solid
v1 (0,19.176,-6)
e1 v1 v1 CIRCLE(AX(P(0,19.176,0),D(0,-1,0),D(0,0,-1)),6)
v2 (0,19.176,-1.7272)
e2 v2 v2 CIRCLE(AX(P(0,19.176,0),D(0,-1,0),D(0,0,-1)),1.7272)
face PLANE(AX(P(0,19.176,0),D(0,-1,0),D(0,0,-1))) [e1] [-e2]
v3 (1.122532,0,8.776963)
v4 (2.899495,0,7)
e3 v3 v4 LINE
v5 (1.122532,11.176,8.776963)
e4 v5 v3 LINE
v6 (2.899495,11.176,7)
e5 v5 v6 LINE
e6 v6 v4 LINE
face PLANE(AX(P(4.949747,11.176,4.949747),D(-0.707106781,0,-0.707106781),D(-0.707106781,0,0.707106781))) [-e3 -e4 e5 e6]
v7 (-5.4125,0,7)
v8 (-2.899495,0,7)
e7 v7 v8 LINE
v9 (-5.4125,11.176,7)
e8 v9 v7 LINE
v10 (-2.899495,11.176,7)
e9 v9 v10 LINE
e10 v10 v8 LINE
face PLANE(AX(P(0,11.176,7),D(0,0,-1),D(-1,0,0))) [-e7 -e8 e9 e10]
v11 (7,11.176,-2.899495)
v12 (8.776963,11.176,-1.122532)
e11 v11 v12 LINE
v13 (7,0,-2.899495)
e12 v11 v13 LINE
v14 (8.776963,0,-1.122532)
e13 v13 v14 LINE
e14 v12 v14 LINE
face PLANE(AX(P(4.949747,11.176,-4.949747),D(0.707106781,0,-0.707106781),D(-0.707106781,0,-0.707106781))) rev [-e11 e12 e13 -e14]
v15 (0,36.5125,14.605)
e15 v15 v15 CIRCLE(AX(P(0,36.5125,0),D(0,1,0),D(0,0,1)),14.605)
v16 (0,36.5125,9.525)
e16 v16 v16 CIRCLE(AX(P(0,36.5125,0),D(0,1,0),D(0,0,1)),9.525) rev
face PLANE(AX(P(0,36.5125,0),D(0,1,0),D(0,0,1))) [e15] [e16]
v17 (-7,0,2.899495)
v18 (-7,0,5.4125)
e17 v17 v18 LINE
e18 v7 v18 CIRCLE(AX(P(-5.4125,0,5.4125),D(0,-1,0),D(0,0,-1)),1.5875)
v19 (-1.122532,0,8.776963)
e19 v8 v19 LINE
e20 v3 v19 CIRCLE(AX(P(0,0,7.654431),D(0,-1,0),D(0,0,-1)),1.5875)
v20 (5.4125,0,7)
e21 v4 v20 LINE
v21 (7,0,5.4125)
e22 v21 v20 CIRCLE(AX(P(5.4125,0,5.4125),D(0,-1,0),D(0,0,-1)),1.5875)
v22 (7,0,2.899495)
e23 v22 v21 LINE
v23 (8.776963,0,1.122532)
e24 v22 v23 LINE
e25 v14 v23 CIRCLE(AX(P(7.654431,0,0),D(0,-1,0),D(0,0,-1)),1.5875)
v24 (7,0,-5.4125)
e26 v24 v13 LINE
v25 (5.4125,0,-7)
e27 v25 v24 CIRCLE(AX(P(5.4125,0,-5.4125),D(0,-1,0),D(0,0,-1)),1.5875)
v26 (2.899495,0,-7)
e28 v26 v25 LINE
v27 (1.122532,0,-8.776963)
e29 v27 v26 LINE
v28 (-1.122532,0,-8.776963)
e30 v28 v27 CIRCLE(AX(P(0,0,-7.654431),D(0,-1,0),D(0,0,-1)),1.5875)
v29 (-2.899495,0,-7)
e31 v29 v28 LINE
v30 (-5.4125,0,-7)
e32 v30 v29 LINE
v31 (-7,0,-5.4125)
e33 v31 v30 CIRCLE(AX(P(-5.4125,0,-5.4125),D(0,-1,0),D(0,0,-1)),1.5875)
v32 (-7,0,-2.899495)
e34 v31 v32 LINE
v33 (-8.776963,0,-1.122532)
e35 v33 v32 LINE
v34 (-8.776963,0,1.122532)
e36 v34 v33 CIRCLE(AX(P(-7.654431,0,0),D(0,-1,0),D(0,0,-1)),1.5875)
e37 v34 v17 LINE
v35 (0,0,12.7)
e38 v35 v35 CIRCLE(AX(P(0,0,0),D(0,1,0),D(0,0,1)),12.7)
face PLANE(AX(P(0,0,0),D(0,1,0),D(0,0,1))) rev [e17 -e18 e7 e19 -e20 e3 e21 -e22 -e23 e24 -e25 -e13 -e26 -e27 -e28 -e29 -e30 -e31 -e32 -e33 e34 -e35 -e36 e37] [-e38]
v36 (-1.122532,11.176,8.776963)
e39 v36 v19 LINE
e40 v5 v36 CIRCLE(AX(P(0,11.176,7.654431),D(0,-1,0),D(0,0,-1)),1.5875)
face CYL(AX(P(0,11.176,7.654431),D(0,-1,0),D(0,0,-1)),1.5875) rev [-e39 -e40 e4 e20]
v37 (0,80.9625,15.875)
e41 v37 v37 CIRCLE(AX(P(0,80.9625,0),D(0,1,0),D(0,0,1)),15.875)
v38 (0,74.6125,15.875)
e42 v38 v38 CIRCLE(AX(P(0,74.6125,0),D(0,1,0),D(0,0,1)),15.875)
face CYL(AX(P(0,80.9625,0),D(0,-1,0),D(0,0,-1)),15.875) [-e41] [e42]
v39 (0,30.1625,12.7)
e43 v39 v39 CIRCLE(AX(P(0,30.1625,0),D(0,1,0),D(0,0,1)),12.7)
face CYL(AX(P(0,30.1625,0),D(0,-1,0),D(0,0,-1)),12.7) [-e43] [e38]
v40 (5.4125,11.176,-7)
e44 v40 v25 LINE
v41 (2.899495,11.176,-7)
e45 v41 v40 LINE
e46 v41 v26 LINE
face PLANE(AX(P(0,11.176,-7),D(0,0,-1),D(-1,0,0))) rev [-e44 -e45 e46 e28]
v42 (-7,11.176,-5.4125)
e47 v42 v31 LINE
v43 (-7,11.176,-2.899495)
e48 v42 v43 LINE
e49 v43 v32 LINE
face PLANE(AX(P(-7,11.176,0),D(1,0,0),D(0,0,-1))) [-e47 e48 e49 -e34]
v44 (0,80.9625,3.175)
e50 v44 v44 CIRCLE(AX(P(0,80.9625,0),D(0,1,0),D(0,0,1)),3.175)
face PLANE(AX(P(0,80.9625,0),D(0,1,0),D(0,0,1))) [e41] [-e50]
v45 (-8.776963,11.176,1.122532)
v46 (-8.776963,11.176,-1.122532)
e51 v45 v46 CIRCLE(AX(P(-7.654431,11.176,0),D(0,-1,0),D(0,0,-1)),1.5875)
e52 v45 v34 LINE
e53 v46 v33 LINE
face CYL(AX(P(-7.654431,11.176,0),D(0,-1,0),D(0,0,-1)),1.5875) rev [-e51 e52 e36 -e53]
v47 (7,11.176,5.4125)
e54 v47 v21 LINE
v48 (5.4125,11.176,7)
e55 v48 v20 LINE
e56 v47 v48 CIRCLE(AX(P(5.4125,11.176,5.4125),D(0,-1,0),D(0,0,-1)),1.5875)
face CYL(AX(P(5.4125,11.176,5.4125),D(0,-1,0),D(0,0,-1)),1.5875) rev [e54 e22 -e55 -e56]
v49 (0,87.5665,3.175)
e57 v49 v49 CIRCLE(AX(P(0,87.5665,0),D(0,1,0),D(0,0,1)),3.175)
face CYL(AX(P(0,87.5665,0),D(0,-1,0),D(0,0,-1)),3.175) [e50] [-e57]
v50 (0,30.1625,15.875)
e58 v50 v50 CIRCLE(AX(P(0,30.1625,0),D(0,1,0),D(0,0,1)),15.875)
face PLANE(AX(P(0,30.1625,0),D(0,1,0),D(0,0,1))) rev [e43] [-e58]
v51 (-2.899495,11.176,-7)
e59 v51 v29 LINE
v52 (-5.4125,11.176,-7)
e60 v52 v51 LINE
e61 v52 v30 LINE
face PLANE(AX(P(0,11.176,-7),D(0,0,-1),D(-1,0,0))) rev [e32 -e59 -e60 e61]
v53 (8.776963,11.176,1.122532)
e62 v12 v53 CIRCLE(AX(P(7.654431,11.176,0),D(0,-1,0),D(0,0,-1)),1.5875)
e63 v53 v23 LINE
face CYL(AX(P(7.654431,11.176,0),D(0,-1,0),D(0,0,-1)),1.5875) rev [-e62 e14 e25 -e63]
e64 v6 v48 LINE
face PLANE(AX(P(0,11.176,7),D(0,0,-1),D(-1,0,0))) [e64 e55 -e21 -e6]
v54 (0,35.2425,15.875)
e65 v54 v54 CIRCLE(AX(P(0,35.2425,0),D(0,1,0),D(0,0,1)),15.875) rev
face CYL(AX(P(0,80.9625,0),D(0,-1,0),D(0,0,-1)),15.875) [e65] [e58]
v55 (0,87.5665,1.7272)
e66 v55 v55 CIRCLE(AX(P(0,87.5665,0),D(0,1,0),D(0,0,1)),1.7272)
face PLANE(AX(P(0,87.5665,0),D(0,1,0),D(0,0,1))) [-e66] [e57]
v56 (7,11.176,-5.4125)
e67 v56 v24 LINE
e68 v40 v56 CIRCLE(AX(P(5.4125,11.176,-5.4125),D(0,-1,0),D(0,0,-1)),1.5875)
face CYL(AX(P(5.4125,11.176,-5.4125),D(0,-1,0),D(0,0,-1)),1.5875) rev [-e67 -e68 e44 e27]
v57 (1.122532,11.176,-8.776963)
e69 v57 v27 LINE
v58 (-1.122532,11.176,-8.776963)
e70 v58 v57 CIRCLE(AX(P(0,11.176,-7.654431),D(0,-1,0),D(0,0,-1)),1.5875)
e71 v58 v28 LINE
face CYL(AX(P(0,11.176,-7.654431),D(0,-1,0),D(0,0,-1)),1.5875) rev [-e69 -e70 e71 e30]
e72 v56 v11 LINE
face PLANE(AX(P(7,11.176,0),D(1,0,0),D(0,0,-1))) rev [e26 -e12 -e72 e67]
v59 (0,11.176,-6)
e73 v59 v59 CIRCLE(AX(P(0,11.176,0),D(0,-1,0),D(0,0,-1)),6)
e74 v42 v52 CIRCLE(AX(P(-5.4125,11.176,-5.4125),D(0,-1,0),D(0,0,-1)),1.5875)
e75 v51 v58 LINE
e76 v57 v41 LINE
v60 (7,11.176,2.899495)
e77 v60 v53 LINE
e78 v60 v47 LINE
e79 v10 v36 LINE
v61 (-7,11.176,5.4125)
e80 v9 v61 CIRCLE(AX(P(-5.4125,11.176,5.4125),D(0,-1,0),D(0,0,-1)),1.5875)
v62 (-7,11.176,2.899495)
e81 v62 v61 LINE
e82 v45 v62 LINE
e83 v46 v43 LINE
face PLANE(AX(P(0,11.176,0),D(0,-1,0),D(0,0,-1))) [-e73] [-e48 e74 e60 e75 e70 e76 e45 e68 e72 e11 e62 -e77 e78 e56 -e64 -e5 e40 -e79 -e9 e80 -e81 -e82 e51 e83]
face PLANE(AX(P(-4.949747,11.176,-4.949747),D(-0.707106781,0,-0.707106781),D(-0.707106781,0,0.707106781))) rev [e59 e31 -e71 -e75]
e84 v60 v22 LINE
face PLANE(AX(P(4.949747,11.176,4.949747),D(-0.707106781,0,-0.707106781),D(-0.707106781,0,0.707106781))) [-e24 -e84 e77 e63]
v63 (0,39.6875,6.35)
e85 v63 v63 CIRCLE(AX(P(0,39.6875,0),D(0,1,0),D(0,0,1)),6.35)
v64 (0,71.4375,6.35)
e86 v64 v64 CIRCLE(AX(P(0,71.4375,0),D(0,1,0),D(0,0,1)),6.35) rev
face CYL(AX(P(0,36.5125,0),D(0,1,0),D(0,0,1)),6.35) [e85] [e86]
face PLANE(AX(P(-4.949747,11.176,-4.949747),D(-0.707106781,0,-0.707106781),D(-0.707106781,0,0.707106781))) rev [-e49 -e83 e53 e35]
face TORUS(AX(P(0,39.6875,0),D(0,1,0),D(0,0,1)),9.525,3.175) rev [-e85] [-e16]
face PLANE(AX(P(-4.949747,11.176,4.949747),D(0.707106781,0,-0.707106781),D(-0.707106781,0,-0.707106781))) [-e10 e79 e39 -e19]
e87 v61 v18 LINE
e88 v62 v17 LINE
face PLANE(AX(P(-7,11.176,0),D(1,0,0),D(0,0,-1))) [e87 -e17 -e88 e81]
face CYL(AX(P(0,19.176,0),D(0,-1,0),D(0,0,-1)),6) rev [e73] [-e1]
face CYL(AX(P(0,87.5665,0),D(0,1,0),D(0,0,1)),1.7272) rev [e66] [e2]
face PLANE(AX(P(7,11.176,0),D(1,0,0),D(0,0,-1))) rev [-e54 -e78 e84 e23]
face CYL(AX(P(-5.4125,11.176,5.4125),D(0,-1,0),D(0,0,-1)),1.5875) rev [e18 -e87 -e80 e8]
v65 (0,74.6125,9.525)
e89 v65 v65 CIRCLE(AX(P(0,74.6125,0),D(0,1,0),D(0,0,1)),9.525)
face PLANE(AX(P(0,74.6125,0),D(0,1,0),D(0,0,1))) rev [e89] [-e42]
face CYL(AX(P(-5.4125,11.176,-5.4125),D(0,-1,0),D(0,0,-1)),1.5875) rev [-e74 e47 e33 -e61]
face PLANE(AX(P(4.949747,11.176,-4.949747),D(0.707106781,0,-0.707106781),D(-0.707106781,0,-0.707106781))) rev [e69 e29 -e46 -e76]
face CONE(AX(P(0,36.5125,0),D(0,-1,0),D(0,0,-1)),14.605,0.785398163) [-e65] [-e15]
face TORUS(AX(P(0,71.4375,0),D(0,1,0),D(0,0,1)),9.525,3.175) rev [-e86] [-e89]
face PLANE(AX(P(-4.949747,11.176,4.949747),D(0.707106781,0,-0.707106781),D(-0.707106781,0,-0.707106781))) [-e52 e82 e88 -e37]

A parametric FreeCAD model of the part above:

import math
import FreeCAD as App
import Part
import Sketcher

V = App.Vector
Q = App.Units.Quantity


def edges_at(feature, points):
    """Names of the edges that pass closest to the given points."""
    edges = feature.Shape.Edges
    near = lambda p: min(range(len(edges)), key=lambda i: edges[i].distToShape(Part.Vertex(*p))[0])
    return sorted({f"Edge{near(p) + 1}" for p in points})

doc = App.newDocument("Part")
body = doc.addObject("PartDesign::Body", "Body")

# Sketch on XZ plane
sketch1 = doc.addObject("Sketcher::SketchObject", "Sketch")
body.addObject(sketch1)
sketch1.AttachmentSupport = (doc.XZ_Plane, [""])
sketch1.MapMode = "FlatFace"
sketch1.addGeometry(Part.Circle(V(0, 0, 0), V(0, 0, 1), 13), False)
sketch1.addConstraint(Sketcher.Constraint("Coincident", 0, 3, -1, 1))
sketch1.addConstraint(Sketcher.Constraint("Diameter", 0, Q("1 in")))
pad1 = doc.addObject("PartDesign::Pad", "Pad")
body.addObject(pad1)
pad1.Profile = sketch1
pad1.Length = Q("1.1875 in")
pad1.Reversed = True

# Sketch on XZ plane
sketch2 = doc.addObject("Sketcher::SketchObject", "Sketch001")
body.addObject(sketch2)
sketch2.AttachmentSupport = (doc.XZ_Plane, [""])
sketch2.MapMode = "FlatFace"
sketch2.AttachmentOffset = App.Placement(V(0, 0, -1.1875 * 25.4), App.Rotation())
sketch2.addGeometry(Part.Circle(V(0, 0, 0), V(0, 0, 1), 16), False)
sketch2.addConstraint(Sketcher.Constraint("Coincident", 0, 3, -1, 1))
sketch2.addConstraint(Sketcher.Constraint("Diameter", 0, Q("1.25 in")))
pad2 = doc.addObject("PartDesign::Pad", "Pad001")
body.addObject(pad2)
pad2.Profile = sketch2
pad2.Length = Q("2 in")
pad2.Reversed = True

# Sketch on XZ plane
sketch3 = doc.addObject("Sketcher::SketchObject", "Sketch002")
body.addObject(sketch3)
sketch3.AttachmentSupport = (doc.XZ_Plane, [""])
sketch3.MapMode = "FlatFace"
sketch3.addGeometry(Part.LineSegment(V(-7, 2.9, 0), V(-8.8, 1.1, 0)), False)
sketch3.addGeometry(Part.ArcOfCircle(Part.Circle(V(-7.7, 0, 0), V(0, 0, 1), 1.6), math.radians(135), math.radians(225)), False)
sketch3.addGeometry(Part.LineSegment(V(-8.8, -1.1, 0), V(-7, -2.9, 0)), False)
sketch3.addGeometry(Part.LineSegment(V(-7, -2.9, 0), V(-7, -5.4, 0)), False)
sketch3.addGeometry(Part.ArcOfCircle(Part.Circle(V(-5.4, -5.4, 0), V(0, 0, 1), 1.6), math.radians(180), math.radians(270)), False)
sketch3.addGeometry(Part.LineSegment(V(-5.4, -7, 0), V(-2.9, -7, 0)), False)
sketch3.addGeometry(Part.LineSegment(V(-2.9, -7, 0), V(-1.1, -8.8, 0)), False)
sketch3.addGeometry(Part.ArcOfCircle(Part.Circle(V(0, -7.7, 0), V(0, 0, 1), 1.6), math.radians(-135), math.radians(-45)), False)
sketch3.addGeometry(Part.LineSegment(V(1.1, -8.8, 0), V(2.9, -7, 0)), False)
sketch3.addGeometry(Part.LineSegment(V(2.9, -7, 0), V(5.4, -7, 0)), False)
sketch3.addGeometry(Part.ArcOfCircle(Part.Circle(V(5.4, -5.4, 0), V(0, 0, 1), 1.6), math.radians(-90), math.radians(0)), False)
sketch3.addGeometry(Part.LineSegment(V(7, -5.4, 0), V(7, -2.9, 0)), False)
sketch3.addGeometry(Part.LineSegment(V(7, -2.9, 0), V(8.8, -1.1, 0)), False)
sketch3.addGeometry(Part.ArcOfCircle(Part.Circle(V(7.7, 0, 0), V(0, 0, 1), 1.6), math.radians(-45), math.radians(45)), False)
sketch3.addGeometry(Part.LineSegment(V(8.8, 1.1, 0), V(7, 2.9, 0)), False)
sketch3.addGeometry(Part.LineSegment(V(7, 2.9, 0), V(7, 5.4, 0)), False)
sketch3.addGeometry(Part.ArcOfCircle(Part.Circle(V(5.4, 5.4, 0), V(0, 0, 1), 1.6), math.radians(0), math.radians(90)), False)
sketch3.addGeometry(Part.LineSegment(V(5.4, 7, 0), V(2.9, 7, 0)), False)
sketch3.addGeometry(Part.LineSegment(V(2.9, 7, 0), V(1.1, 8.8, 0)), False)
sketch3.addGeometry(Part.ArcOfCircle(Part.Circle(V(0, 7.7, 0), V(0, 0, 1), 1.6), math.radians(45), math.radians(135)), False)
sketch3.addGeometry(Part.LineSegment(V(-1.1, 8.8, 0), V(-2.9, 7, 0)), False)
sketch3.addGeometry(Part.LineSegment(V(-2.9, 7, 0), V(-5.4, 7, 0)), False)
sketch3.addGeometry(Part.ArcOfCircle(Part.Circle(V(-5.4, 5.4, 0), V(0, 0, 1), 1.6), math.radians(90), math.radians(180)), False)
sketch3.addGeometry(Part.LineSegment(V(-7, 5.4, 0), V(-7, 2.9, 0)), False)
sketch3.addConstraint(Sketcher.Constraint("Tangent", 0, 2, 1, 1))
sketch3.addConstraint(Sketcher.Constraint("Tangent", 1, 2, 2, 1))
sketch3.addConstraint(Sketcher.Constraint("Coincident", 2, 2, 3, 1))
sketch3.addConstraint(Sketcher.Constraint("Tangent", 3, 2, 4, 1))
sketch3.addConstraint(Sketcher.Constraint("Tangent", 4, 2, 5, 1))
sketch3.addConstraint(Sketcher.Constraint("Coincident", 5, 2, 6, 1))
sketch3.addConstraint(Sketcher.Constraint("Tangent", 6, 2, 7, 1))
sketch3.addConstraint(Sketcher.Constraint("Tangent", 7, 2, 8, 1))
sketch3.addConstraint(Sketcher.Constraint("Coincident", 8, 2, 9, 1))
sketch3.addConstraint(Sketcher.Constraint("Tangent", 9, 2, 10, 1))
sketch3.addConstraint(Sketcher.Constraint("Tangent", 10, 2, 11, 1))
sketch3.addConstraint(Sketcher.Constraint("Coincident", 11, 2, 12, 1))
sketch3.addConstraint(Sketcher.Constraint("Tangent", 12, 2, 13, 1))
sketch3.addConstraint(Sketcher.Constraint("Tangent", 13, 2, 14, 1))
sketch3.addConstraint(Sketcher.Constraint("Coincident", 14, 2, 15, 1))
sketch3.addConstraint(Sketcher.Constraint("Tangent", 15, 2, 16, 1))
sketch3.addConstraint(Sketcher.Constraint("Tangent", 16, 2, 17, 1))
sketch3.addConstraint(Sketcher.Constraint("Coincident", 17, 2, 18, 1))
sketch3.addConstraint(Sketcher.Constraint("Tangent", 18, 2, 19, 1))
sketch3.addConstraint(Sketcher.Constraint("Tangent", 19, 2, 20, 1))
sketch3.addConstraint(Sketcher.Constraint("Coincident", 20, 2, 21, 1))
sketch3.addConstraint(Sketcher.Constraint("Tangent", 21, 2, 22, 1))
sketch3.addConstraint(Sketcher.Constraint("Tangent", 22, 2, 23, 1))
sketch3.addConstraint(Sketcher.Constraint("Coincident", 23, 2, 0, 1))
sketch3.addConstraint(Sketcher.Constraint("Vertical", 3))
sketch3.addConstraint(Sketcher.Constraint("Horizontal", 5))
sketch3.addConstraint(Sketcher.Constraint("Horizontal", 9))
sketch3.addConstraint(Sketcher.Constraint("Vertical", 11))
sketch3.addConstraint(Sketcher.Constraint("Vertical", 15))
sketch3.addConstraint(Sketcher.Constraint("Horizontal", 17))
sketch3.addConstraint(Sketcher.Constraint("Horizontal", 21))
sketch3.addConstraint(Sketcher.Constraint("Vertical", 23))
sketch3.addConstraint(Sketcher.Constraint("Equal", 1, 4))
sketch3.addConstraint(Sketcher.Constraint("Equal", 4, 7))
sketch3.addConstraint(Sketcher.Constraint("Equal", 7, 10))
sketch3.addConstraint(Sketcher.Constraint("Equal", 10, 13))
sketch3.addConstraint(Sketcher.Constraint("Equal", 13, 16))
sketch3.addConstraint(Sketcher.Constraint("Equal", 16, 19))
sketch3.addConstraint(Sketcher.Constraint("Equal", 19, 22))
sketch3.addConstraint(Sketcher.Constraint("Symmetric", 1, 3, 13, 3, -1, 1))
sketch3.addConstraint(Sketcher.Constraint("Symmetric", 4, 3, 16, 3, -1, 1))
sketch3.addConstraint(Sketcher.Constraint("Symmetric", 7, 3, 19, 3, -1, 1))
sketch3.addConstraint(Sketcher.Constraint("Symmetric", 10, 3, 22, 3, -1, 1))
sketch3.addConstraint(Sketcher.Constraint("Symmetric", 4, 3, 10, 3, -2))
sketch3.addConstraint(Sketcher.Constraint("Symmetric", 6, 2, 7, 2, -2))
sketch3.addConstraint(Sketcher.Constraint("Symmetric", 1, 2, 12, 2, -2))
sketch3.addConstraint(Sketcher.Constraint("Perpendicular", 0, 2))
sketch3.addConstraint(Sketcher.Constraint("Parallel", 2, 6))
sketch3.addConstraint(Sketcher.Constraint("Perpendicular", 6, 8))
sketch3.addConstraint(Sketcher.Constraint("Perpendicular", 12, 14))
sketch3.addConstraint(Sketcher.Constraint("Parallel", 14, 18))
sketch3.addConstraint(Sketcher.Constraint("Perpendicular", 18, 20))
sketch3.addConstraint(Sketcher.Constraint("Equal", 21, 3))
sketch3.addConstraint(Sketcher.Constraint("Equal", 2, 6))
sketch3.addConstraint(Sketcher.Constraint("Radius", 1, Q("0.0625 in")))
sketch3.addConstraint(Sketcher.Constraint("DistanceX", 4, 3, -1, 1, 5.4125))
sketch3.addConstraint(Sketcher.Constraint("DistanceY", 0, 2, 19, 3, 6.531899))
pocket1 = doc.addObject("PartDesign::Pocket", "Pocket")
body.addObject(pocket1)
pocket1.Profile = sketch3
pocket1.Length = Q("0.44 in")

# Sketch on XZ plane
sketch4 = doc.addObject("Sketcher::SketchObject", "Sketch003")
body.addObject(sketch4)
sketch4.AttachmentSupport = (doc.XZ_Plane, [""])
sketch4.MapMode = "FlatFace"
sketch4.AttachmentOffset = App.Placement(V(0, 0, -0.44 * 25.4), App.Rotation())
sketch4.addGeometry(Part.Circle(V(0, 0, 0), V(0, 0, 1), 6), False)
sketch4.addConstraint(Sketcher.Constraint("Coincident", 0, 3, -1, 1))
sketch4.addConstraint(Sketcher.Constraint("Diameter", 0, 12.0))
pocket2 = doc.addObject("PartDesign::Pocket", "Pocket001")
body.addObject(pocket2)
pocket2.Profile = sketch4
pocket2.Length = 8

# Sketch on XZ plane
sketch5 = doc.addObject("Sketcher::SketchObject", "Sketch004")
body.addObject(sketch5)
sketch5.AttachmentSupport = (doc.XZ_Plane, [""])
sketch5.MapMode = "FlatFace"
sketch5.AttachmentOffset = App.Placement(V(0, 0, -3.1875 * 25.4), App.Rotation())
sketch5.addGeometry(Part.Circle(V(0, 0, 0), V(0, 0, 1), 3.2), False)
sketch5.addConstraint(Sketcher.Constraint("Coincident", 0, 3, -1, 1))
sketch5.addConstraint(Sketcher.Constraint("Diameter", 0, Q("0.25 in")))
pad3 = doc.addObject("PartDesign::Pad", "Pad002")
body.addObject(pad3)
pad3.Profile = sketch5
pad3.Length = Q("0.26 in")
pad3.Reversed = True

# Sketch on XZ plane
sketch6 = doc.addObject("Sketcher::SketchObject", "Sketch005")
body.addObject(sketch6)
sketch6.AttachmentSupport = (doc.XZ_Plane, [""])
sketch6.MapMode = "FlatFace"
sketch6.AttachmentOffset = App.Placement(V(0, 0, -3.4475 * 25.4), App.Rotation())
sketch6.addGeometry(Part.Circle(V(0, 0, 0), V(0, 0, 1), 1.7), False)
sketch6.addConstraint(Sketcher.Constraint("Coincident", 0, 3, -1, 1))
sketch6.addConstraint(Sketcher.Constraint("Diameter", 0, Q("0.136 in")))
doc.recompute()
hole = doc.addObject("PartDesign::Hole", "Hole")
body.addObject(hole)
hole.Profile = sketch6
hole.ThreadType = "None"
hole.Diameter = Q("0.136 in")
hole.DepthType = "ThroughAll"
hole.Reversed = True

# Sketch on XZ plane
sketch7 = doc.addObject("Sketcher::SketchObject", "Sketch006")
body.addObject(sketch7)
sketch7.AttachmentSupport = (doc.XZ_Plane, [""])
sketch7.MapMode = "FlatFace"
sketch7.AttachmentOffset = App.Placement(V(0, 0, -2.9375 * 25.4), App.Rotation())
sketch7.addGeometry(Part.Circle(V(0, 0, 0), V(0, 0, 1), 16), False)
sketch7.addGeometry(Part.Circle(V(0, 0, 0), V(0, 0, 1), 6), False)
sketch7.addConstraint(Sketcher.Constraint("Coincident", 0, 3, -1, 1))
sketch7.addConstraint(Sketcher.Constraint("Coincident", 1, 3, -1, 1))
sketch7.addConstraint(Sketcher.Constraint("Diameter", 1, Q("0.5 in")))
sketch7.addConstraint(Sketcher.Constraint("Diameter", 0, Q("1.25 in")))
pocket3 = doc.addObject("PartDesign::Pocket", "Pocket002")
body.addObject(pocket3)
pocket3.Profile = sketch7
pocket3.Length = Q("1.5 in")
pocket3.Reversed = True
doc.recompute()

fillet = doc.addObject("PartDesign::Fillet", "Fillet")
body.addObject(fillet)
fillet.Base = (pocket3, edges_at(pocket3, [(-6.35, 36.513, 0), (-6.35, 74.612, 0)]))
fillet.Radius = Q("0.125 in")
doc.recompute()

chamfer = doc.addObject("PartDesign::Chamfer", "Chamfer")
body.addObject(chamfer)
chamfer.Base = (fillet, edges_at(fillet, [(-15.875, 36.513, 0)]))
chamfer.Size = Q("0.05 in")

doc.recompute()
